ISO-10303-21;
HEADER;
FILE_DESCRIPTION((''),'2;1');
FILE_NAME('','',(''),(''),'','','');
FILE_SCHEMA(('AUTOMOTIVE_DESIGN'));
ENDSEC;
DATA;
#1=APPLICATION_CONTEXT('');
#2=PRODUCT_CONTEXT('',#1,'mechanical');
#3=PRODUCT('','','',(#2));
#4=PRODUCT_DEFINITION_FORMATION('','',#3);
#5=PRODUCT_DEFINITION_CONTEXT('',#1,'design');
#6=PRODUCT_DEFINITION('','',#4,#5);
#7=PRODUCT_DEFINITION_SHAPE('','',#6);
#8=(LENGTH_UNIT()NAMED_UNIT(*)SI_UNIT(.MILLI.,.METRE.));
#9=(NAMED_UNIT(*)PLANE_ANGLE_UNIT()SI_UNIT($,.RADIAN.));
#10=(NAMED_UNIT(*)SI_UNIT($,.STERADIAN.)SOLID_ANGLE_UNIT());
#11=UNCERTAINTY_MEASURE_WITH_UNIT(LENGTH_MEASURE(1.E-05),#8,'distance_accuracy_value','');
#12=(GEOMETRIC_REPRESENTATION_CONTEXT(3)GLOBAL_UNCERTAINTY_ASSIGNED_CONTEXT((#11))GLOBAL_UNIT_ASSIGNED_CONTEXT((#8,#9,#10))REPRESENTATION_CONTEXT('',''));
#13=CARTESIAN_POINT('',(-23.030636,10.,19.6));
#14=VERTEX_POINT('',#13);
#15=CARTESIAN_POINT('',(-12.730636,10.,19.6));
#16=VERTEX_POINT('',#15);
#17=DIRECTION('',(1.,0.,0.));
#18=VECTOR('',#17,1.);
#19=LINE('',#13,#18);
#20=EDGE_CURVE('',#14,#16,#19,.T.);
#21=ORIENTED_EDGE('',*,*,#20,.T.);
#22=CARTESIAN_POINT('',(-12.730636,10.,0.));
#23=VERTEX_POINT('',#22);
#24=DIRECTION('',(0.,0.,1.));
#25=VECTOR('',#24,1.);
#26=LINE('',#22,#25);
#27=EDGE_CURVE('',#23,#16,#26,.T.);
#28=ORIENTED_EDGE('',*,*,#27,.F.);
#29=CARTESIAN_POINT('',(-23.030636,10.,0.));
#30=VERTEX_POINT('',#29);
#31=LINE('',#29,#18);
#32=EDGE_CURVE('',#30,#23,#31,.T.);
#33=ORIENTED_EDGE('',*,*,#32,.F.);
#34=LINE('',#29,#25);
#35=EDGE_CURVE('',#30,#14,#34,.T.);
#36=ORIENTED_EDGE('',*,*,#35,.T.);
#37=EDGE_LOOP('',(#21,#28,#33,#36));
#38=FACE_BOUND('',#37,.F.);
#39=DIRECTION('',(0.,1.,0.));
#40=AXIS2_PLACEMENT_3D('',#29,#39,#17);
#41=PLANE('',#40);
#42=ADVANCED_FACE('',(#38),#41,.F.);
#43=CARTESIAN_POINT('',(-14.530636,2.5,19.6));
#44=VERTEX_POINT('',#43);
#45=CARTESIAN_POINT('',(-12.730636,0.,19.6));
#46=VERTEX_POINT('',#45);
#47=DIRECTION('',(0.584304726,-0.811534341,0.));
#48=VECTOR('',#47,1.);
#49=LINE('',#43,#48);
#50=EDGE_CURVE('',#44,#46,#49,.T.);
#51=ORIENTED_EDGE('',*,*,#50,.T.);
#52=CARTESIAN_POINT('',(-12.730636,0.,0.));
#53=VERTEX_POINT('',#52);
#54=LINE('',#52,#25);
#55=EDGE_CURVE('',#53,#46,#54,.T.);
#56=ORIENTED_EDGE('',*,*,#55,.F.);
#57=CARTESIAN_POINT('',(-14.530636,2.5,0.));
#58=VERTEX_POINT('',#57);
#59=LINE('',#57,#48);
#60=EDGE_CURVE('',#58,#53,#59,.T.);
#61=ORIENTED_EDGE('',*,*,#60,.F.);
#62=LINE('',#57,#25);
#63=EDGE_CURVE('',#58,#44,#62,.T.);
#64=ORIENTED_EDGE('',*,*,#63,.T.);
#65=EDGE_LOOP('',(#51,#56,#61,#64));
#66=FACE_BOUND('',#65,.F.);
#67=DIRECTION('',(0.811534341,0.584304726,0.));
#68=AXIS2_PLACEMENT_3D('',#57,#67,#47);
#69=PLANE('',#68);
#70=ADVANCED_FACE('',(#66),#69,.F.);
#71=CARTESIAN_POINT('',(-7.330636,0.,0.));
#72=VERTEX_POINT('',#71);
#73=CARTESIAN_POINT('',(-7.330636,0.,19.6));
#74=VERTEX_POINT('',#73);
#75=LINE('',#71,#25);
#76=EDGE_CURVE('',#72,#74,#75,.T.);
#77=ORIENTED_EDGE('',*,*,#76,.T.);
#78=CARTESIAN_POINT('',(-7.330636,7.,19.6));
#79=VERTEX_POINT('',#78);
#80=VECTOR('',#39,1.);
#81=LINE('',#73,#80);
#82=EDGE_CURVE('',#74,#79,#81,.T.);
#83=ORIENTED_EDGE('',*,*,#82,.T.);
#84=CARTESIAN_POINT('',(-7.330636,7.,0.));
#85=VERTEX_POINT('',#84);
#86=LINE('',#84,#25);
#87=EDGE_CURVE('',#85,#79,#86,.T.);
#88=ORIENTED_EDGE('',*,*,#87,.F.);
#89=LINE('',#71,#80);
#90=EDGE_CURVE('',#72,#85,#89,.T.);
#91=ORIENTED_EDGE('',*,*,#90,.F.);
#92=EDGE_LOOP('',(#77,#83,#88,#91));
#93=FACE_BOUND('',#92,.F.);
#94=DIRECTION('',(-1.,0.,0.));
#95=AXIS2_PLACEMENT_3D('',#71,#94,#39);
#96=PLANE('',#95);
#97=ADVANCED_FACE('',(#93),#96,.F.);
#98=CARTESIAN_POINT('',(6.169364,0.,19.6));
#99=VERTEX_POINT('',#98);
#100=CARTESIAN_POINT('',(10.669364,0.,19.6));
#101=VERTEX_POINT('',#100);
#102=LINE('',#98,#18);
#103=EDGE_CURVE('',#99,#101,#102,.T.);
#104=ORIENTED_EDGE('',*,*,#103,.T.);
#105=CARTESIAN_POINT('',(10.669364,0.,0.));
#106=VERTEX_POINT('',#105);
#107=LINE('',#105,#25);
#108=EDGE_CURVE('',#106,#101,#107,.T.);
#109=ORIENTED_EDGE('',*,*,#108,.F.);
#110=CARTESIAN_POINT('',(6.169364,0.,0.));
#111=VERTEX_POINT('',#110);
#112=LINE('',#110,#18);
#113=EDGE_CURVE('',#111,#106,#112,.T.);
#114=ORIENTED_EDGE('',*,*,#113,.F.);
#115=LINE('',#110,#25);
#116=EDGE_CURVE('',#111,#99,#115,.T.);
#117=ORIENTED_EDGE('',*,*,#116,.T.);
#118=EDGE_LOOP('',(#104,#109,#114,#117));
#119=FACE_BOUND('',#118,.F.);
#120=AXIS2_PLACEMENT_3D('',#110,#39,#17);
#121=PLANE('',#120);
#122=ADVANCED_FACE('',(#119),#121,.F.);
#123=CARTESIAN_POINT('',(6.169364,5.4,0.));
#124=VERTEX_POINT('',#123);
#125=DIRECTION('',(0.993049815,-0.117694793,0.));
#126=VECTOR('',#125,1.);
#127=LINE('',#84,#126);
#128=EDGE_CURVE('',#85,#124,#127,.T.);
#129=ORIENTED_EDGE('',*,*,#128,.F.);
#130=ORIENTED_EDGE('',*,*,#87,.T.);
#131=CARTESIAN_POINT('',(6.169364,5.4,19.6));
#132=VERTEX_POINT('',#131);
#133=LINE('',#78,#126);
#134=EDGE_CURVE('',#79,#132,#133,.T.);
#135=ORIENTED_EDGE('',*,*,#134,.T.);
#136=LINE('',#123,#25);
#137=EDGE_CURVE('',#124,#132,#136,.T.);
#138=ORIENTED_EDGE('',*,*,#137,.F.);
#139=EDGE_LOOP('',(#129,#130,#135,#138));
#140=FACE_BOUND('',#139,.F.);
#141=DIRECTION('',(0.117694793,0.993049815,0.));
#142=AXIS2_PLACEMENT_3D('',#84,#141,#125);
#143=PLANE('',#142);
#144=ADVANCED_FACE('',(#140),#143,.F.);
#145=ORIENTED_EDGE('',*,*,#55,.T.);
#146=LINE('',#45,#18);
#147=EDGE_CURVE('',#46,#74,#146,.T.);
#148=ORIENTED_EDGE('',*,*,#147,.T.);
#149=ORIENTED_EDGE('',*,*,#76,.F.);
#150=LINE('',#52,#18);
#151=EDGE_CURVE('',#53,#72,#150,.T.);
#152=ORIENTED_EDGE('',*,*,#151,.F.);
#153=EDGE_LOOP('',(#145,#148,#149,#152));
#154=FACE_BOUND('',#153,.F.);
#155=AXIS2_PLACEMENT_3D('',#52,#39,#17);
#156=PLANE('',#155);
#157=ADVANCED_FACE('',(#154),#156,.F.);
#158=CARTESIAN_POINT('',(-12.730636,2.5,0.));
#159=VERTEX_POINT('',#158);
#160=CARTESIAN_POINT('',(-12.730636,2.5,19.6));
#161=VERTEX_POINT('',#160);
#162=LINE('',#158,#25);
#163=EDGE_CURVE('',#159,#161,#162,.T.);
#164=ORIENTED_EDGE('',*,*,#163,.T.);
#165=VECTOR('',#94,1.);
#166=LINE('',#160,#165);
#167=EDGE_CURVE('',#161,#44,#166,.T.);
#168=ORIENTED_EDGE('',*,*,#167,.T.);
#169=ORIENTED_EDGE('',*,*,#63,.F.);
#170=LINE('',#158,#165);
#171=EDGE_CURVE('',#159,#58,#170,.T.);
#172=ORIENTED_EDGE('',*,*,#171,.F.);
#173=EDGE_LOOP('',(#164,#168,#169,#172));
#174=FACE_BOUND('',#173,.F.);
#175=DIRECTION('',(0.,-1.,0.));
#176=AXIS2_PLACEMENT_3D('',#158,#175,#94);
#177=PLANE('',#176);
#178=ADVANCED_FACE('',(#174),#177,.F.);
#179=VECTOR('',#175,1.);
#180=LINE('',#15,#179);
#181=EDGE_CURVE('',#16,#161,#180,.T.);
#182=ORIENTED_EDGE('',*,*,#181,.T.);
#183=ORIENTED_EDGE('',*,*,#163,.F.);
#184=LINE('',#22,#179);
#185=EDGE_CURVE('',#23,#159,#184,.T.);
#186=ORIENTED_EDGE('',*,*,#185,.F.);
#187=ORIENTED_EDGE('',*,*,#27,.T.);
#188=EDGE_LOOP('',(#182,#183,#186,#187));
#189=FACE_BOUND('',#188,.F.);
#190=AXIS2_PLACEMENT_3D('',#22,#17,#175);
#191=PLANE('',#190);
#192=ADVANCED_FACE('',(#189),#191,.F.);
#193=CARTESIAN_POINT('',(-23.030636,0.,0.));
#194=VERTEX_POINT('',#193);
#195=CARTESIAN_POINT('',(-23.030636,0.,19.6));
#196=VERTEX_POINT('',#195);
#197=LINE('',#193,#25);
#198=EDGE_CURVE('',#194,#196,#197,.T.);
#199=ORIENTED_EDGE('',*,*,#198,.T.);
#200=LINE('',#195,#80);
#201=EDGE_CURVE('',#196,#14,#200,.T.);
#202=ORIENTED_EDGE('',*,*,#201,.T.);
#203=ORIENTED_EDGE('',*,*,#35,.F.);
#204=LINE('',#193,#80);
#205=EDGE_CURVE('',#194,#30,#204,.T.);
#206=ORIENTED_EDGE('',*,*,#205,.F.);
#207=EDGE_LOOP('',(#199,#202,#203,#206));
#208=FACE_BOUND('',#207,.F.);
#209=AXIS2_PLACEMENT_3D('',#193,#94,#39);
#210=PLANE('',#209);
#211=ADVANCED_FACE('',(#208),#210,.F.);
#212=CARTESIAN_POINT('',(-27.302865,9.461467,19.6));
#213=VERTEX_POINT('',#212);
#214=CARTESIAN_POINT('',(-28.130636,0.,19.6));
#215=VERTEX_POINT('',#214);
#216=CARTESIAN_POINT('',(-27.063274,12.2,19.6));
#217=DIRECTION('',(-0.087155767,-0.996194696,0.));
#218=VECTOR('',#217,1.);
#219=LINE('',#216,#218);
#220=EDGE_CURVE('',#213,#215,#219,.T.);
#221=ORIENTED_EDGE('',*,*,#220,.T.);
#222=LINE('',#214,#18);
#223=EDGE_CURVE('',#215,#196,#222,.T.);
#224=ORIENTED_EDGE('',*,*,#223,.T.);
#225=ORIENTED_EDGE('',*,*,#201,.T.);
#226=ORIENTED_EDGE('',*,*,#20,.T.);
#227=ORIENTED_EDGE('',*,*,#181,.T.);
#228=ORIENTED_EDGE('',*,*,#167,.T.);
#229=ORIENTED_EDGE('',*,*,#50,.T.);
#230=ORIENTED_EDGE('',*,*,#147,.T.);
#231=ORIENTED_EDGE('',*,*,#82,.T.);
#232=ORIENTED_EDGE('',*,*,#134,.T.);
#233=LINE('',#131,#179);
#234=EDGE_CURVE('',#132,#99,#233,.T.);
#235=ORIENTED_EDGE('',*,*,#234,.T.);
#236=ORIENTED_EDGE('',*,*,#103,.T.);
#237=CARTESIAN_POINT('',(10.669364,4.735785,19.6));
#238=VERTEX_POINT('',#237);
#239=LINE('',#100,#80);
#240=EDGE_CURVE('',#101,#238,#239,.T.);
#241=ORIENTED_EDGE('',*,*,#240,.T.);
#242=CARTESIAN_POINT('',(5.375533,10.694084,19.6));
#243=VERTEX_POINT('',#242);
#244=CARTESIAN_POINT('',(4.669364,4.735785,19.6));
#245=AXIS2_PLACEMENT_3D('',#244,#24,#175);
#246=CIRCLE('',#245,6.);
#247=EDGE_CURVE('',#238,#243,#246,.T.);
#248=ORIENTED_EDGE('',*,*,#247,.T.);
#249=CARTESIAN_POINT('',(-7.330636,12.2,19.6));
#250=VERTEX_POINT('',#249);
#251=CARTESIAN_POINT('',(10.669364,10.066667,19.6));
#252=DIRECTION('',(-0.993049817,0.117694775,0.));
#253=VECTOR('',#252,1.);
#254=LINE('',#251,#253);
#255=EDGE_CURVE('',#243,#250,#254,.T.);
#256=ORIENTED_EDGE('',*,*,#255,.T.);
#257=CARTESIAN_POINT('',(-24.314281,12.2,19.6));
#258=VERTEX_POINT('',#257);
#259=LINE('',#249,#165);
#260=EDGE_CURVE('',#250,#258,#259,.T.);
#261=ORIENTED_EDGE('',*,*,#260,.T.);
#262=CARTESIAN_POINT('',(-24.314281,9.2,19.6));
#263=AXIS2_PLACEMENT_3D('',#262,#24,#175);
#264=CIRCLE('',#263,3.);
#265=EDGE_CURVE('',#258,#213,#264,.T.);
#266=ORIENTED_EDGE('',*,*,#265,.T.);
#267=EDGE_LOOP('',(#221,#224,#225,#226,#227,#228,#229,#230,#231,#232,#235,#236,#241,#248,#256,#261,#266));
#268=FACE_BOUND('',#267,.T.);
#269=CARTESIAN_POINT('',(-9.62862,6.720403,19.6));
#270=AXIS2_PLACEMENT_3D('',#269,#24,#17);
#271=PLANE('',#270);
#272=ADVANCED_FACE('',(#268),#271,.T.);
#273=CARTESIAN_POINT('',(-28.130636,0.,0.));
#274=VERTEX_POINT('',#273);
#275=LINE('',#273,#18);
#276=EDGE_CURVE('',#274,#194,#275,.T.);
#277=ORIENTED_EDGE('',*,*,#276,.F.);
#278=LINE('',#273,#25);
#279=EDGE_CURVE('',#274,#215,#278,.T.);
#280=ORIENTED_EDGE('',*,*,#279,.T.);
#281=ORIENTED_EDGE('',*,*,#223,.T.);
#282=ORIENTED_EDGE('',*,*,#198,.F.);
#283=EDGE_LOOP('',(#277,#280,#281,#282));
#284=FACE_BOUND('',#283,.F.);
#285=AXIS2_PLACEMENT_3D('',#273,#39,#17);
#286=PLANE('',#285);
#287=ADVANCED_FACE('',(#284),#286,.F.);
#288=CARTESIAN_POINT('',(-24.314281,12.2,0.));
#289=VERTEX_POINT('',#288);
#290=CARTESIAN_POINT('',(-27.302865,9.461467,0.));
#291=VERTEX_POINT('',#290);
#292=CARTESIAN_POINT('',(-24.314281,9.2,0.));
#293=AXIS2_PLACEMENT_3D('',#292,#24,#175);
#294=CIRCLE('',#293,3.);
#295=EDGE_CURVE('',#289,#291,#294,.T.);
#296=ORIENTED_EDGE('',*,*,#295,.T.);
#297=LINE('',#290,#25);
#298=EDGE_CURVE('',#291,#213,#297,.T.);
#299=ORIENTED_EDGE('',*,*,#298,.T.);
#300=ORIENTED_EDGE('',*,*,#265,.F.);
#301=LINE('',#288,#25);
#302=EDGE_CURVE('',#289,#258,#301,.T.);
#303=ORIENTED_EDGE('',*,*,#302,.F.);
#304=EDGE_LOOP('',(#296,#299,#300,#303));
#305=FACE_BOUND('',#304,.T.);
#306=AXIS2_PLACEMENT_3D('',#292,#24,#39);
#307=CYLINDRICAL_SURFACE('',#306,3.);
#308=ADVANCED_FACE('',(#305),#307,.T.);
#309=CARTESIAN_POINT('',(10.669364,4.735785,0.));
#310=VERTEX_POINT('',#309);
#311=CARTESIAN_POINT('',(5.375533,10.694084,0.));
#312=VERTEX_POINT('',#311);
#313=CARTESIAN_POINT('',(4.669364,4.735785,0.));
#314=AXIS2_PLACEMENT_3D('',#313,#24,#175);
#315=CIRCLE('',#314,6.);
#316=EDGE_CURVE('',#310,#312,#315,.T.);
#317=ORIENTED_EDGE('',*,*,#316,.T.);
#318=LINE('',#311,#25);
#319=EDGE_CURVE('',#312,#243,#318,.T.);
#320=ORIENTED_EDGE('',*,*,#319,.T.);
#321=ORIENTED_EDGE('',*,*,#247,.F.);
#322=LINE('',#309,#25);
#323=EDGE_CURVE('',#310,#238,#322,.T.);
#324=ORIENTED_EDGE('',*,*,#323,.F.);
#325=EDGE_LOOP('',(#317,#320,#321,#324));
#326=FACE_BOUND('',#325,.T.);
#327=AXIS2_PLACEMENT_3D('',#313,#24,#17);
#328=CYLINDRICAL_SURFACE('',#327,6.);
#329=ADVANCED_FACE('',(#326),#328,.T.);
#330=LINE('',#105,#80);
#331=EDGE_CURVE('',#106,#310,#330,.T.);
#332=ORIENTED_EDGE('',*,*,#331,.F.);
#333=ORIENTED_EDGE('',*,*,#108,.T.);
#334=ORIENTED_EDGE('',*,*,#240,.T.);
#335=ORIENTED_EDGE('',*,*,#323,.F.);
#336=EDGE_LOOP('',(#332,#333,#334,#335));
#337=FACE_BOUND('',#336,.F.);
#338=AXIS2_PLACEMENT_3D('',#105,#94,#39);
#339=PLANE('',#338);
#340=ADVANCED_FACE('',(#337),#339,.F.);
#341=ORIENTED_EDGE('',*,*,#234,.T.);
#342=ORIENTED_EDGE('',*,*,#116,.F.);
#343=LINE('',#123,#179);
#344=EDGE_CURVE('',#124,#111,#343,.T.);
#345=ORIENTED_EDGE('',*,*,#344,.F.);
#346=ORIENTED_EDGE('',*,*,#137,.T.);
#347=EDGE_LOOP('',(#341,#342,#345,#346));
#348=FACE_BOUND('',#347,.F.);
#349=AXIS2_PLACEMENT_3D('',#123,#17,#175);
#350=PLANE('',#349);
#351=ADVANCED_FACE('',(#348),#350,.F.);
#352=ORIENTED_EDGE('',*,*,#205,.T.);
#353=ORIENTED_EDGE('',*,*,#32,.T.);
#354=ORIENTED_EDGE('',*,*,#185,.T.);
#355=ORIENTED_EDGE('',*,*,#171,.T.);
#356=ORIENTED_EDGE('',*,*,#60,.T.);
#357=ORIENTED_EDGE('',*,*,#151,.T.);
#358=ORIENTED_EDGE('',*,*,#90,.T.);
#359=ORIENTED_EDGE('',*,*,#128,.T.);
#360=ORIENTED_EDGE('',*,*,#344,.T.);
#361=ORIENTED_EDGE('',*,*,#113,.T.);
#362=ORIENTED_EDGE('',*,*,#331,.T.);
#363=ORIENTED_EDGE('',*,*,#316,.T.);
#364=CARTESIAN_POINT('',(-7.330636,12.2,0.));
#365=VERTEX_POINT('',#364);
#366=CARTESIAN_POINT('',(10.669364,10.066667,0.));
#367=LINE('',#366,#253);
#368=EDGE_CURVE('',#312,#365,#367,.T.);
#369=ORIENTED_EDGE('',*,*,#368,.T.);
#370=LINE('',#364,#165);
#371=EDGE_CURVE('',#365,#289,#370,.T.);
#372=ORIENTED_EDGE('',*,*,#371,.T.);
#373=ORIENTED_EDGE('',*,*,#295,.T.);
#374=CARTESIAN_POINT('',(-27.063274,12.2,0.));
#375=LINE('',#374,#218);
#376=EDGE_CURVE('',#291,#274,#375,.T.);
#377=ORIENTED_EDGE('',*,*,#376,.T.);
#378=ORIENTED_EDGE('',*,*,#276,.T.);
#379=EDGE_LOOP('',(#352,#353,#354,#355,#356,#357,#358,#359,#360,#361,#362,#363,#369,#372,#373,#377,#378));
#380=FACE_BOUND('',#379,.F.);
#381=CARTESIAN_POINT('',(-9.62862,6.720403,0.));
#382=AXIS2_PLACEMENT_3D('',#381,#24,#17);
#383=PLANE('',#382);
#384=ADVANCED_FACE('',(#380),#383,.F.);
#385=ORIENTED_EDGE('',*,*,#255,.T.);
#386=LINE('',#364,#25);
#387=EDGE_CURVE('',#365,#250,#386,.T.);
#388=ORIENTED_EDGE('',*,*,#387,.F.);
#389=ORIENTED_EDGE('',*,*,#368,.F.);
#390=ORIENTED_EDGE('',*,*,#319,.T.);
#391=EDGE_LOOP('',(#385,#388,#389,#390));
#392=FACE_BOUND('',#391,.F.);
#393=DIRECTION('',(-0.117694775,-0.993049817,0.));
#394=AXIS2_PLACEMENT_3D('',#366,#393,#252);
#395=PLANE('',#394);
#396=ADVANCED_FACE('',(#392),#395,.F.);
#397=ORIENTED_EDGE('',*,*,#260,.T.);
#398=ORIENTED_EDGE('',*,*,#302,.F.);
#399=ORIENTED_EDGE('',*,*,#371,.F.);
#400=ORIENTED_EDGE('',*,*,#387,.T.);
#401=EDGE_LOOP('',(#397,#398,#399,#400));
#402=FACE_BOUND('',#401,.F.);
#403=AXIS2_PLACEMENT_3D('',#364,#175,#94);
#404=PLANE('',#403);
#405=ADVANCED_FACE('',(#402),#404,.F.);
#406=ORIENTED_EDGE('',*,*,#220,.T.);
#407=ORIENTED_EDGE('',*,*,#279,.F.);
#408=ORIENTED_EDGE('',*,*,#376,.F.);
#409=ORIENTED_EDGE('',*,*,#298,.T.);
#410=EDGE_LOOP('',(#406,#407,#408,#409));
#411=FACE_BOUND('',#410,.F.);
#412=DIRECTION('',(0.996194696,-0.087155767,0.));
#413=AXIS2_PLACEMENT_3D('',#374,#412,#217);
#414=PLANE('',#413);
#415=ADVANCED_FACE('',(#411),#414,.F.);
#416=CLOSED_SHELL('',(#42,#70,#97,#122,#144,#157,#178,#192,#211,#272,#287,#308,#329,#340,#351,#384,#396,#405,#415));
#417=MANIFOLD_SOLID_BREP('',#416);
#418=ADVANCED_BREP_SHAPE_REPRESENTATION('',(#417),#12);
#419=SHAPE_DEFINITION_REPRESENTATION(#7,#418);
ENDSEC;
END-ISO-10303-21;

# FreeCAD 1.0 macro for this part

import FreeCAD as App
import Part
import Sketcher

V = App.Vector
Q = App.Units.Quantity


def edges_at(feature, points):
    """Names of the edges that pass closest to the given points."""
    edges = feature.Shape.Edges
    near = lambda p: min(range(len(edges)), key=lambda i: edges[i].distToShape(Part.Vertex(*p))[0])
    return sorted({f"Edge{near(p) + 1}" for p in points})

doc = App.newDocument("Part")
body = doc.addObject("PartDesign::Body", "Body")

# Sketch on XY plane
sketch1 = body.newObject("Sketcher::SketchObject", "Sketch")
sketch1.AttachmentSupport = (doc.getObject("XY_Plane"), [""])
sketch1.MapMode = "FlatFace"
sketch1.addGeometry([
    Part.LineSegment(V(-28.1, 0, 0), V(-23, 0, 0)),  # 0
    Part.LineSegment(V(-23, 0, 0), V(-23, 10, 0)),  # 1
    Part.LineSegment(V(-23, 10, 0), V(-12.7, 10, 0)),  # 2
    Part.LineSegment(V(-12.7, 10, 0), V(-12.7, 2.5, 0)),  # 3
    Part.LineSegment(V(-12.7, 2.5, 0), V(-14.5, 2.5, 0)),  # 4
    Part.LineSegment(V(-14.5, 2.5, 0), V(-12.7, 0, 0)),  # 5
    Part.LineSegment(V(-12.7, 0, 0), V(-7.3, 0, 0)),  # 6
    Part.LineSegment(V(-7.3, 0, 0), V(-7.3, 7, 0)),  # 7
    Part.LineSegment(V(-7.3, 7, 0), V(6.2, 5.4, 0)),  # 8
    Part.LineSegment(V(6.2, 5.4, 0), V(6.2, 0, 0)),  # 9
    Part.LineSegment(V(6.2, 0, 0), V(10.7, 0, 0)),  # 10
    Part.LineSegment(V(10.7, 0, 0), V(10.7, 10.1, 0)),  # 11
    Part.LineSegment(V(10.7, 10.1, 0), V(-7.3, 12.2, 0)),  # 12
    Part.LineSegment(V(-7.3, 12.2, 0), V(-27.1, 12.2, 0)),  # 13
    Part.LineSegment(V(-27.1, 12.2, 0), V(-28.1, 0, 0)),  # 14
], False)
sketch1.addConstraint([
    Sketcher.Constraint("Coincident", 0, 2, 1, 1),
    Sketcher.Constraint("Coincident", 1, 2, 2, 1),
    Sketcher.Constraint("Coincident", 2, 2, 3, 1),
    Sketcher.Constraint("Coincident", 3, 2, 4, 1),
    Sketcher.Constraint("Coincident", 4, 2, 5, 1),
    Sketcher.Constraint("Coincident", 5, 2, 6, 1),
    Sketcher.Constraint("Coincident", 6, 2, 7, 1),
    Sketcher.Constraint("Coincident", 7, 2, 8, 1),
    Sketcher.Constraint("Coincident", 8, 2, 9, 1),
    Sketcher.Constraint("Coincident", 9, 2, 10, 1),
    Sketcher.Constraint("Coincident", 10, 2, 11, 1),
    Sketcher.Constraint("Coincident", 11, 2, 12, 1),
    Sketcher.Constraint("Coincident", 12, 2, 13, 1),
    Sketcher.Constraint("Coincident", 13, 2, 14, 1),
    Sketcher.Constraint("Coincident", 14, 2, 0, 1),
    Sketcher.Constraint("Horizontal", 0),
    Sketcher.Constraint("Vertical", 1),
    Sketcher.Constraint("Horizontal", 2),
    Sketcher.Constraint("Vertical", 3),
    Sketcher.Constraint("Horizontal", 4),
    Sketcher.Constraint("Horizontal", 6),
    Sketcher.Constraint("Vertical", 7),
    Sketcher.Constraint("Vertical", 9),
    Sketcher.Constraint("Horizontal", 10),
    Sketcher.Constraint("Vertical", 11),
    Sketcher.Constraint("Horizontal", 13),
    Sketcher.Constraint("PointOnObject", 0, 2, -1),
    Sketcher.Constraint("PointOnObject", 5, 2, -1),
    Sketcher.Constraint("PointOnObject", 9, 2, -1),
    Sketcher.Constraint("Parallel", 8, 12),
    Sketcher.Constraint("Vertical", 3, 2, 5, 2),
    Sketcher.Constraint("Vertical", 7, 2, 12, 2),
    Sketcher.Constraint("Equal", 6, 9),
    Sketcher.Constraint("DistanceY", 1, 1, 1, 2, Q("10 mm")),
    Sketcher.Constraint("DistanceY", 7, 1, 7, 2, Q("7 mm")),
    Sketcher.Constraint("Angle", 14, Q("-95.000001 deg")),
    Sketcher.Constraint("DistanceX", 0, 1, 0, 2, Q("5.1 mm")),
    Sketcher.Constraint("DistanceX", 2, 1, 2, 2, Q("10.3 mm")),
    Sketcher.Constraint("DistanceX", 4, 2, 4, 1, Q("1.8 mm")),
    Sketcher.Constraint("DistanceX", 6, 1, 6, 2, Q("5.4 mm")),
    Sketcher.Constraint("DistanceX", 10, 1, 10, 2, Q("4.5 mm")),
    Sketcher.Constraint("DistanceY", 3, 2, 3, 1, Q("7.5 mm")),
    Sketcher.Constraint("DistanceX", 6, 2, 10, 2, Q("18 mm")),
    Sketcher.Constraint("DistanceY", -1, 1, 12, 2, Q("12.2 mm")),
    Sketcher.Constraint("DistanceX", 0, 2, -1, 1, Q("23.030636 mm")),
])
pad1 = body.newObject("PartDesign::Pad", "Pad")
pad1.Profile = sketch1
pad1.Length = 19.6
doc.recompute()

fillet = body.newObject("PartDesign::Fillet", "Fillet")
fillet.Base = (pad1, edges_at(pad1, [(10.669, 10.067, 9.8)]))
fillet.Radius = 6
doc.recompute()

fillet2 = body.newObject("PartDesign::Fillet", "Fillet001")
fillet2.Base = (fillet, edges_at(fillet, [(-27.063, 12.2, 9.8)]))
fillet2.Radius = 3

doc.recompute()
